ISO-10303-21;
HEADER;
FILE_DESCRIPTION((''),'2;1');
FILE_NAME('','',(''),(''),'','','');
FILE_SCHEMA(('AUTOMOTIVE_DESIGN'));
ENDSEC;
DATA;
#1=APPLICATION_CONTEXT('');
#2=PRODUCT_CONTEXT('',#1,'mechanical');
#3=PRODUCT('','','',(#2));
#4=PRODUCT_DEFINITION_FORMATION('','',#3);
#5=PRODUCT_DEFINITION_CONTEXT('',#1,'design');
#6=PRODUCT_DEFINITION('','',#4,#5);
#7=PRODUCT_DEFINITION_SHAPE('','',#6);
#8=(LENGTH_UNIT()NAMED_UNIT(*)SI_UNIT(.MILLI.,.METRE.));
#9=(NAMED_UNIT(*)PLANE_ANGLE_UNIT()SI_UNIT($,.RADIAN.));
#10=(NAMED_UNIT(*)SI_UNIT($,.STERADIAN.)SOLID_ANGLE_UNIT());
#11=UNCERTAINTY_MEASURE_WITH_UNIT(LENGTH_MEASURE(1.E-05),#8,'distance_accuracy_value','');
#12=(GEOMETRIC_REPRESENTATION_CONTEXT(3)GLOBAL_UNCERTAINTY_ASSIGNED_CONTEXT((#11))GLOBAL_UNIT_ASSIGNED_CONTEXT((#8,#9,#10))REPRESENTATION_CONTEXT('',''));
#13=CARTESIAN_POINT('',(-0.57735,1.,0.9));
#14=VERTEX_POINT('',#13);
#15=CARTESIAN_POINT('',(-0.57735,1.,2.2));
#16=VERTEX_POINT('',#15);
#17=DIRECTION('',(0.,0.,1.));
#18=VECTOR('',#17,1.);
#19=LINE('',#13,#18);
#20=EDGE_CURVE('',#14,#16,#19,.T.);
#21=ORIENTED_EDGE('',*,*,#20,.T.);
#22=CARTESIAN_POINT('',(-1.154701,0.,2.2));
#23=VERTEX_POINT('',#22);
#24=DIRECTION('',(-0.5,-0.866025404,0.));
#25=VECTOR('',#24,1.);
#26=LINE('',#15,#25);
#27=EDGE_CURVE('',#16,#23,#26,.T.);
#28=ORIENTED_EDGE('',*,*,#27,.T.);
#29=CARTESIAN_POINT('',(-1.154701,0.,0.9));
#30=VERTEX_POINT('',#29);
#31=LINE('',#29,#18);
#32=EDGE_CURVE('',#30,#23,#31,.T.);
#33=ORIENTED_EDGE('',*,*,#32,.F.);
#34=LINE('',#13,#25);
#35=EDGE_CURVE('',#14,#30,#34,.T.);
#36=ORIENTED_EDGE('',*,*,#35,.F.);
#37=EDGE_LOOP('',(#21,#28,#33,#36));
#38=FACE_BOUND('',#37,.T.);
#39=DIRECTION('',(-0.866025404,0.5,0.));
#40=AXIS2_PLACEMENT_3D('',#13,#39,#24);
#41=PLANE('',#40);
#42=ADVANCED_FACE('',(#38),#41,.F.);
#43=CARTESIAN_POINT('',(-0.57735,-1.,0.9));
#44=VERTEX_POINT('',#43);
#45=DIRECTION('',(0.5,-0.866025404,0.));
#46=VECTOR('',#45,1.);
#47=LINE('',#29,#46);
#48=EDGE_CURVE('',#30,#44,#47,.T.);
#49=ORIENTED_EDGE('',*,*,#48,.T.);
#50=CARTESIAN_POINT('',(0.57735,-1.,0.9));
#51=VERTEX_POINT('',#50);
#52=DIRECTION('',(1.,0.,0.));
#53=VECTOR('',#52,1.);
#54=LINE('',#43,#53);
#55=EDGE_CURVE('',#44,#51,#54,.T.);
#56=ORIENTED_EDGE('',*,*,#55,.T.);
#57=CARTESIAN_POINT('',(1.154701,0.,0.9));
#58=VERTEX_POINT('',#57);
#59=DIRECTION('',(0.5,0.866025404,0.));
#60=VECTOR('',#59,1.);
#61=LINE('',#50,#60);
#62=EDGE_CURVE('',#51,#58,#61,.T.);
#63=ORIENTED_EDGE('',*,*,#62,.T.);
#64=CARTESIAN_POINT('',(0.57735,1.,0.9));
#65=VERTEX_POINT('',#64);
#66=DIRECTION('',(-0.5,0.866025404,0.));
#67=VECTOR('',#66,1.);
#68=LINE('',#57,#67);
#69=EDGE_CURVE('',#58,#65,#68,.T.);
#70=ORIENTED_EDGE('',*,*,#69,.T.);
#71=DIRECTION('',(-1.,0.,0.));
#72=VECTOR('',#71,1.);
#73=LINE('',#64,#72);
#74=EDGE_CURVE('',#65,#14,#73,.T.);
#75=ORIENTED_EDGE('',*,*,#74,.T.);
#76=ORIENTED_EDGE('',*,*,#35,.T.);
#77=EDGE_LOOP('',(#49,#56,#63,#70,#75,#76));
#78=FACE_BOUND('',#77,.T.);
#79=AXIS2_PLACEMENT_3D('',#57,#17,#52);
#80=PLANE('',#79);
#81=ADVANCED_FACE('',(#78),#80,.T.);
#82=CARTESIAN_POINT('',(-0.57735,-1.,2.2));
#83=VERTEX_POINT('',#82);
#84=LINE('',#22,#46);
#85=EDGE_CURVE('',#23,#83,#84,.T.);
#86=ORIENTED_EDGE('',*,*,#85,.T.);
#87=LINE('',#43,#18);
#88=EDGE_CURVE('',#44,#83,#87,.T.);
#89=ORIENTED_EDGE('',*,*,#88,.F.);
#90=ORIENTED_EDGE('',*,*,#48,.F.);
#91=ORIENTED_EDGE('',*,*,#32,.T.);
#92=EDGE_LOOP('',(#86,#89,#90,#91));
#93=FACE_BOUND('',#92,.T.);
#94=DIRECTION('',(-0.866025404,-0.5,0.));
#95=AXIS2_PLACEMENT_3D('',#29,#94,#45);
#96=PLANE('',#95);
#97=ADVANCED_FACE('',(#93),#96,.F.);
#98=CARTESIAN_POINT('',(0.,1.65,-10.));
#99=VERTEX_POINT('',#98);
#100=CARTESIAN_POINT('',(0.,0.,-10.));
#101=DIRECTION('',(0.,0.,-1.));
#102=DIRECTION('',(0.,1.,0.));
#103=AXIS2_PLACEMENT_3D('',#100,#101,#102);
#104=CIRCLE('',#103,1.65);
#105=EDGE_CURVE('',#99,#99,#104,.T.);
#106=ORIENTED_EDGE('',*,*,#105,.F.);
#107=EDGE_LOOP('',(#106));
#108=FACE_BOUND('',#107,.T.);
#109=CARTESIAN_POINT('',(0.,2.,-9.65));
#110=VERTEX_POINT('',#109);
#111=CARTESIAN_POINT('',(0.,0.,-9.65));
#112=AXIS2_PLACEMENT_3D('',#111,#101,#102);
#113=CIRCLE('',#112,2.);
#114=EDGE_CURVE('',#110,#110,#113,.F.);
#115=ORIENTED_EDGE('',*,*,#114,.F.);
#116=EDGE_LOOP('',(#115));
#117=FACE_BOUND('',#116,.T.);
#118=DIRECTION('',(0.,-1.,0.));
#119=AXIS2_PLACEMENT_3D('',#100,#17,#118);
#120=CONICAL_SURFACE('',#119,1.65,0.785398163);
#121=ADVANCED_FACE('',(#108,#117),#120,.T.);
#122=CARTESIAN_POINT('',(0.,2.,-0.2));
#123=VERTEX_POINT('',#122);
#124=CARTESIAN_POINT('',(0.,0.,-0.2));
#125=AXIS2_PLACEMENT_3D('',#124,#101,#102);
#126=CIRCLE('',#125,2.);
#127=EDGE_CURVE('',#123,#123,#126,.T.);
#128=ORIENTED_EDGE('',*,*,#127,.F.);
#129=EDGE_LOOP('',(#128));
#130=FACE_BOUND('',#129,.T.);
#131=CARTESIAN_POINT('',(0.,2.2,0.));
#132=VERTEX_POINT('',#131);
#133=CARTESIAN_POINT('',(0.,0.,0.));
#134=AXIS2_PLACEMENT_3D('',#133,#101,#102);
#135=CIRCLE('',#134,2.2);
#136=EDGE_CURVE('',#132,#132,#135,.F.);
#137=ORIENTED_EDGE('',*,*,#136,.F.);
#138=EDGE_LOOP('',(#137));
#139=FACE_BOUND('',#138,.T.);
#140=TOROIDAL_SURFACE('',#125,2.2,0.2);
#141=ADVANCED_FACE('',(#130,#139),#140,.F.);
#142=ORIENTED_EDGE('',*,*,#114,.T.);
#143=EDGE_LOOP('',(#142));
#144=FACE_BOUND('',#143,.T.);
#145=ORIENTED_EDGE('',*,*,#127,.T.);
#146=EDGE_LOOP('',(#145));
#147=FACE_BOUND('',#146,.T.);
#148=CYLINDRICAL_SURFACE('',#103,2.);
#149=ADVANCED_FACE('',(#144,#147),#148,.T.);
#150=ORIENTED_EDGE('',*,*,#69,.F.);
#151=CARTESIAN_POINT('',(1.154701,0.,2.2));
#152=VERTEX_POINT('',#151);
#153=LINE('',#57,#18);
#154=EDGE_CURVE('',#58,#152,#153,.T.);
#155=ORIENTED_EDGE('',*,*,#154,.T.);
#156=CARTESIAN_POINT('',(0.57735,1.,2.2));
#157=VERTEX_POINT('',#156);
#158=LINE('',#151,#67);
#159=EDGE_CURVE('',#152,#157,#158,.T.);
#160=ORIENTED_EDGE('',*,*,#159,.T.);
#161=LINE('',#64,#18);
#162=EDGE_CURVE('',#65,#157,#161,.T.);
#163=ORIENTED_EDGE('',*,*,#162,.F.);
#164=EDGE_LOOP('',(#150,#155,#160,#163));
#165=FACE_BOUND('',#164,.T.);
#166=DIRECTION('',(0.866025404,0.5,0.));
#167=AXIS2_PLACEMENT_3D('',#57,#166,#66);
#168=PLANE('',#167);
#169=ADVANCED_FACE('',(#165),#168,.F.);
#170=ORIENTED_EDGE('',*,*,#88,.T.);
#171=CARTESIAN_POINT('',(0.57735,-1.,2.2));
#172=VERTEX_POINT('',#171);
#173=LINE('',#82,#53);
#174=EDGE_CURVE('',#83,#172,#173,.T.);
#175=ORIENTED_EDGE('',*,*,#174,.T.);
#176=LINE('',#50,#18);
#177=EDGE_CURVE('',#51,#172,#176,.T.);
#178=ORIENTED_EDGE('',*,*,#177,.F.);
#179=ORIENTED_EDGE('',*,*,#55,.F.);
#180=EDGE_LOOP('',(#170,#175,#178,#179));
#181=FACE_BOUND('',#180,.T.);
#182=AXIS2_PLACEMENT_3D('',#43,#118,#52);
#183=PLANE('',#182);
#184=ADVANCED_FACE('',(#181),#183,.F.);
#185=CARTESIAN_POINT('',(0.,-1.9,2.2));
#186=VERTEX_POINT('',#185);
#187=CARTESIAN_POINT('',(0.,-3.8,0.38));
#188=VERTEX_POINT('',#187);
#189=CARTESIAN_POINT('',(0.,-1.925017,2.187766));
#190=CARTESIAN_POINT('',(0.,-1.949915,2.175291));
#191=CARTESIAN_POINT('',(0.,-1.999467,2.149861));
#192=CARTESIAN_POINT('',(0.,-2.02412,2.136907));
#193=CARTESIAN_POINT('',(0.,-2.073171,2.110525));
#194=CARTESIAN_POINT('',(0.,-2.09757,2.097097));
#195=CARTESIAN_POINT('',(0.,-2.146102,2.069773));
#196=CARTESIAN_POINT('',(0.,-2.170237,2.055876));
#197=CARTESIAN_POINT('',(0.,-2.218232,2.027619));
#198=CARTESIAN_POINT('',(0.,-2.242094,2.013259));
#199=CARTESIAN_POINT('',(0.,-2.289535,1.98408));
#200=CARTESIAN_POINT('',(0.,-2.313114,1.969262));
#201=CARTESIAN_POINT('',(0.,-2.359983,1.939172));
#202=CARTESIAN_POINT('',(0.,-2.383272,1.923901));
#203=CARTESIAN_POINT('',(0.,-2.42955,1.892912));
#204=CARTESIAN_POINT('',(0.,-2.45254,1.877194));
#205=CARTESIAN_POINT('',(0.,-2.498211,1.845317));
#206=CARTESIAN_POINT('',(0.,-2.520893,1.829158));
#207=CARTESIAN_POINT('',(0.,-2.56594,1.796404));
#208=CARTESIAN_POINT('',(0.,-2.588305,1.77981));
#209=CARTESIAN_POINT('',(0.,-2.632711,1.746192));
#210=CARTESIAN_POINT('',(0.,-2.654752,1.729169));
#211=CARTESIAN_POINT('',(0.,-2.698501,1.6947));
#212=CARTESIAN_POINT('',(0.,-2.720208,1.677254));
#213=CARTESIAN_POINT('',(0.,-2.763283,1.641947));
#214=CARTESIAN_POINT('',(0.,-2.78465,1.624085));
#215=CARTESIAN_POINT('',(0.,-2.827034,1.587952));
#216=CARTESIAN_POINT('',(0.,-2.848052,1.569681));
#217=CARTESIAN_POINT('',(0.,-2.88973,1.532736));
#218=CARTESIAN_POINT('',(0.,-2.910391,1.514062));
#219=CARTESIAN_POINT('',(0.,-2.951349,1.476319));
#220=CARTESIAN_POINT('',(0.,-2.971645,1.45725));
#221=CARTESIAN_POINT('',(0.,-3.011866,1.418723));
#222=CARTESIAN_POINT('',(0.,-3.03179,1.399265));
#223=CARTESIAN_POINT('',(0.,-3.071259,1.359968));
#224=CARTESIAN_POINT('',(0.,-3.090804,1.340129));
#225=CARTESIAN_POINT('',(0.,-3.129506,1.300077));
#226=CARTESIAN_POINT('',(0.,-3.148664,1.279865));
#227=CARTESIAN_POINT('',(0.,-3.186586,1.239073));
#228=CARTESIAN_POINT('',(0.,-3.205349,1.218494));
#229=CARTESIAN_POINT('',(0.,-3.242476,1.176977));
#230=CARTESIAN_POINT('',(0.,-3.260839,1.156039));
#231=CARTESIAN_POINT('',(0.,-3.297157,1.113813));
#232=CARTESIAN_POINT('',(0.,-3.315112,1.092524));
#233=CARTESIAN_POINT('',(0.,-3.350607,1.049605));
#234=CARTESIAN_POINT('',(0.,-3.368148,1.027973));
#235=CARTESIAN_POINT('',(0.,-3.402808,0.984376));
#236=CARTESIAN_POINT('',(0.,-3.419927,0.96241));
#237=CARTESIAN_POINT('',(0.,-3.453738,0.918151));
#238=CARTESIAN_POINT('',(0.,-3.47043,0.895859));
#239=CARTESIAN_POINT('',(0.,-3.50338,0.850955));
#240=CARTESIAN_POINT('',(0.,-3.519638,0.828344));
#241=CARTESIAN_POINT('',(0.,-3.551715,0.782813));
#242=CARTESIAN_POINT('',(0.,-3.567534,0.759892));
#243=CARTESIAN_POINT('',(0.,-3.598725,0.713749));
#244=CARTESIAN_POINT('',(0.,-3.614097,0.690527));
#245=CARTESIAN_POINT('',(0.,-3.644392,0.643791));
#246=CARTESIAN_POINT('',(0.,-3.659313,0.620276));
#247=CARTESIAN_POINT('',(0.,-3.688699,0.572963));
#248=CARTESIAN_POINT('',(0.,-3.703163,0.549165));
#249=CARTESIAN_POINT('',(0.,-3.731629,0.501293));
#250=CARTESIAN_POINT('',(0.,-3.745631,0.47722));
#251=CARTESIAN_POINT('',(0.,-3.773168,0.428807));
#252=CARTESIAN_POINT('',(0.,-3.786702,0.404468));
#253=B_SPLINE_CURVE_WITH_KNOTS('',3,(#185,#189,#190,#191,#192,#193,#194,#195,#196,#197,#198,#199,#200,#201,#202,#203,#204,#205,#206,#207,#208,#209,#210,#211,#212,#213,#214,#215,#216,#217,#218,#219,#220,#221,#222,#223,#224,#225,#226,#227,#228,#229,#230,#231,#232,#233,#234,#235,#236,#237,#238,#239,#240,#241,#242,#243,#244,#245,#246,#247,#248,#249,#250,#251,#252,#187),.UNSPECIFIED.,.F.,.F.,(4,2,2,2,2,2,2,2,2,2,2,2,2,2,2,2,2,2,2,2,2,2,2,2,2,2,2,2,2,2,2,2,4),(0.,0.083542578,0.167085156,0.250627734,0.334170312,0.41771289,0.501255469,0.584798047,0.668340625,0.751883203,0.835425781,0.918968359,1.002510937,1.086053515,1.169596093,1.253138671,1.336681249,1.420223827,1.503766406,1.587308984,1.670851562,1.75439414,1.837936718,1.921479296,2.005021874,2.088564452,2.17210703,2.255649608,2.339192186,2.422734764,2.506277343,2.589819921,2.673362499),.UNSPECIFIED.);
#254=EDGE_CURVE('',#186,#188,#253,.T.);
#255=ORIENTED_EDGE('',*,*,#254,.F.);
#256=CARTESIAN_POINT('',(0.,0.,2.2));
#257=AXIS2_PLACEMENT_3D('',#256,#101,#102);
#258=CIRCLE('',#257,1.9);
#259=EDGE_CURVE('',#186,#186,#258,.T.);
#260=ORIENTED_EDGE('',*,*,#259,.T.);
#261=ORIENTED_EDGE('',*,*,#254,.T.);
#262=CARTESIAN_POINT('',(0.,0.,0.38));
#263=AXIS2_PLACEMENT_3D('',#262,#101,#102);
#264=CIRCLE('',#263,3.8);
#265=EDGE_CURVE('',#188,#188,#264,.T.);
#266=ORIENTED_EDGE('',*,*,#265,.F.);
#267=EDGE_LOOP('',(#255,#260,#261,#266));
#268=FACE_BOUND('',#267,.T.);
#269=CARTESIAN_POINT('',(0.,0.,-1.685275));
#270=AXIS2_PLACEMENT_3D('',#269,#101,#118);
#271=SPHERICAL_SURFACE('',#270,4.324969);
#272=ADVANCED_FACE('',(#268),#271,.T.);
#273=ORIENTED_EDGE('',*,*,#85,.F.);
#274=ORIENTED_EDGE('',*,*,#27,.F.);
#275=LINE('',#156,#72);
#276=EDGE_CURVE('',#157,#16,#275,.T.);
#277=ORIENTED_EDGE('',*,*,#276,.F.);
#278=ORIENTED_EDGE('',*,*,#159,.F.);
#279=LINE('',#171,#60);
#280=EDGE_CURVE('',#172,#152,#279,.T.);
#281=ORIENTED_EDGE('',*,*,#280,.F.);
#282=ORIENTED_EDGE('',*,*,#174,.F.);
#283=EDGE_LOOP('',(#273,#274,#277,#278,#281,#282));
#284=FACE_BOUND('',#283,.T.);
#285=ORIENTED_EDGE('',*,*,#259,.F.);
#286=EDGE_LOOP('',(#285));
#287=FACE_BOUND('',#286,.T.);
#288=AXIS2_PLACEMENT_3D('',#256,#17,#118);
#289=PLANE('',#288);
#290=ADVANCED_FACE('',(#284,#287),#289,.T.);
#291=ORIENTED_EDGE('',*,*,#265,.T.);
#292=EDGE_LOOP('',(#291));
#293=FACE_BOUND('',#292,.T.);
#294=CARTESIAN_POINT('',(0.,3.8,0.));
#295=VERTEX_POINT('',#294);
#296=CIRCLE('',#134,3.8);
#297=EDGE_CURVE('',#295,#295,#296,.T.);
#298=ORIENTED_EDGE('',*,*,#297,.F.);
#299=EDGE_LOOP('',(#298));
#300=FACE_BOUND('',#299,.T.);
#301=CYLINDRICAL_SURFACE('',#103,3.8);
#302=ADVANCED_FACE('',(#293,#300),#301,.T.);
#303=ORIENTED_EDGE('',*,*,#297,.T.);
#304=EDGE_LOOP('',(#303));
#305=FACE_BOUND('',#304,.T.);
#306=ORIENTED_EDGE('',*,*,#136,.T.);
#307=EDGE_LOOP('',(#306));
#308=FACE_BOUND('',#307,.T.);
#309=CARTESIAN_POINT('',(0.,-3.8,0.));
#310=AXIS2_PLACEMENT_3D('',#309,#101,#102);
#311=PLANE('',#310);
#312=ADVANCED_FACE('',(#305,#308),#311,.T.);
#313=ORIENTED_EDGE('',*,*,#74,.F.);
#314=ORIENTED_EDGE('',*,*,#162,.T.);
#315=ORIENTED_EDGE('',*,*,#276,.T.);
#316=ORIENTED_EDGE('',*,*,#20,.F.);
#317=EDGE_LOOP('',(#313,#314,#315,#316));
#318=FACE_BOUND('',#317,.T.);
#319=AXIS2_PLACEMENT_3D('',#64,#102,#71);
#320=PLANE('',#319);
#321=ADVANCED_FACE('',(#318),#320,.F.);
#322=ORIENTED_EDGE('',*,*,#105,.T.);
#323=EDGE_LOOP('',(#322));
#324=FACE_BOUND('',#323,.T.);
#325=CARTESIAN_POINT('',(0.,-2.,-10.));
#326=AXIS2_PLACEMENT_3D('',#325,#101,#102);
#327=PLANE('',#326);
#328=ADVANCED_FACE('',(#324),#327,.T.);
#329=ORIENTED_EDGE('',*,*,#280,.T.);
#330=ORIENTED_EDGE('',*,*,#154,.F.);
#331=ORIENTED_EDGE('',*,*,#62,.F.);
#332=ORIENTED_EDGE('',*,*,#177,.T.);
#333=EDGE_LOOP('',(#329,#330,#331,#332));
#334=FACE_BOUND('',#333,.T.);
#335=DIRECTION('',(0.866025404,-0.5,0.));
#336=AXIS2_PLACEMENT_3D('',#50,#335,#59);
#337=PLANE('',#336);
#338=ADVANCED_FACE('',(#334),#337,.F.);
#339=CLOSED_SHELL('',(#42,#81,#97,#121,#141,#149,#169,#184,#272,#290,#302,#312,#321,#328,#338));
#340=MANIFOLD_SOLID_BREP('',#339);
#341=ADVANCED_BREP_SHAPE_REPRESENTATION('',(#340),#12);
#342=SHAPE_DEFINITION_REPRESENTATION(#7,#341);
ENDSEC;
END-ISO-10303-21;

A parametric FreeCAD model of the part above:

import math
import FreeCAD as App
import Part
import Sketcher
Q = App.Units.Quantity


def edges_at(feature, points):
    """Names of the edges that pass closest to the given points."""
    edges = feature.Shape.Edges
    near = lambda p: min(range(len(edges)), key=lambda i: edges[i].distToShape(Part.Vertex(*p))[0])
    return sorted({f"Edge{near(p) + 1}" for p in points})


def add_polygon(sketch, points):
    """Adds a closed chain of lines whose ends are joined by coincident constraints."""
    first, n = sketch.GeometryCount, len(points)
    for a, b in zip(points, points[1:] + points[:1]):
        sketch.addGeometry(Part.LineSegment(App.Vector(*a, 0), App.Vector(*b, 0)), False)
    for i in range(n):
        sketch.addConstraint(Sketcher.Constraint("Coincident", first + i, 2, first + (i + 1) % n, 1))

doc = App.newDocument("Part")
params = doc.addObject("Spreadsheet::Sheet", "Params")
for row, (alias, value) in enumerate([
    ("sketch1_width", "2 mm"),
    ("sketch1_height", "10 mm"),
    ("sketch1_width2", "1.9 mm"),
    ("sketch1_width3", "1.8 mm"),
    ("sketch1_height2", "12.2 mm"),
    ("revolution_angle", "360 deg"),
    ("pocket1_length", "1.3 mm"),
    ("chamfer_size", "0.35 mm"),
    ("fillet_radius", "0.2 mm"),
], start=1):
    params.set(f"A{row}", alias)
    params.set(f"B{row}", "=" + value)
    params.setAlias(f"B{row}", alias)

body = doc.addObject("PartDesign::Body", "Body")

sketch1 = body.newObject("Sketcher::SketchObject", "Sketch")
sketch1.AttachmentSupport = (doc.getObject("YZ_Plane"), [""])
sketch1.MapMode = "FlatFace"
sketch1.addGeometry([
    Part.LineSegment(App.Vector(3.8, 0, 0), App.Vector(3.8, 0.38, 0)),
    Part.ArcOfCircle(Part.Circle(App.Vector(0, -1.69, 0), App.Vector(0, 0, 1), 4.32), math.radians(29), math.radians(64)),
    Part.LineSegment(App.Vector(1.9, 2.2, 0), App.Vector(0, 2.2, 0)),
    Part.LineSegment(App.Vector(0, 2.2, 0), App.Vector(0, -10, 0)),
    Part.LineSegment(App.Vector(0, -10, 0), App.Vector(2, -10, 0)),
    Part.LineSegment(App.Vector(2, -10, 0), App.Vector(2, 0, 0)),
    Part.LineSegment(App.Vector(2, 0, 0), App.Vector(3.8, 0, 0)),
], False)
sketch1.addConstraint([
    Sketcher.Constraint("Coincident", 0, 2, 1, 1),
    Sketcher.Constraint("Coincident", 1, 2, 2, 1),
    Sketcher.Constraint("Coincident", 2, 2, 3, 1),
    Sketcher.Constraint("Coincident", 3, 2, 4, 1),
    Sketcher.Constraint("Coincident", 4, 2, 5, 1),
    Sketcher.Constraint("Coincident", 5, 2, 6, 1),
    Sketcher.Constraint("Coincident", 6, 2, 0, 1),
    Sketcher.Constraint("Vertical", 0),
    Sketcher.Constraint("Horizontal", 2),
    Sketcher.Constraint("Vertical", 3),
    Sketcher.Constraint("Horizontal", 4),
    Sketcher.Constraint("Vertical", 5),
    Sketcher.Constraint("Horizontal", 6),
    Sketcher.Constraint("PointOnObject", 1, 3, -2),
    Sketcher.Constraint("PointOnObject", 2, 2, -2),
    Sketcher.Constraint("PointOnObject", 5, 2, -1),
    Sketcher.Constraint("DistanceX", 4, 1, 4, 2, 2.0),
    Sketcher.Constraint("DistanceY", 5, 1, 5, 2, 10.0),
    Sketcher.Constraint("DistanceX", 2, 2, 2, 1, 1.9),
    Sketcher.Constraint("DistanceX", 6, 1, 6, 2, 1.8),
    Sketcher.Constraint("DistanceY", 3, 2, 3, 1, 12.2),
    Sketcher.Constraint("DistanceY", 0, 1, 0, 2, 0.38),
])
sketch1.setExpression("Constraints[16]", "Params.sketch1_width")
sketch1.setExpression("Constraints[17]", "Params.sketch1_height")
sketch1.setExpression("Constraints[18]", "Params.sketch1_width2")
sketch1.setExpression("Constraints[19]", "Params.sketch1_width3")
sketch1.setExpression("Constraints[20]", "Params.sketch1_height2")
revolution = body.newObject("PartDesign::Revolution", "Revolution")
revolution.Profile = sketch1
revolution.ReferenceAxis = (sketch1, ["V_Axis"])
revolution.setExpression("Angle", "Params.revolution_angle")

sketch2 = body.newObject("Sketcher::SketchObject", "Sketch001")
sketch2.AttachmentSupport = (doc.getObject("XY_Plane"), [""])
sketch2.MapMode = "FlatFace"
sketch2.AttachmentOffset = App.Placement(App.Vector(0, 0, 2.2), App.Rotation())
add_polygon(sketch2, [(1.2, 0), (0.6, 1), (-0.6, 1), (-1.2, 0), (-0.6, -1), (0.6, -1)])
sketch2.addConstraint([
    Sketcher.Constraint("Horizontal", 1),
    Sketcher.Constraint("Horizontal", 4),
    Sketcher.Constraint("Symmetric", 0, 2, 3, 2, -1, 1),
    Sketcher.Constraint("Symmetric", 2, 2, 5, 2, -1, 1),
    Sketcher.Constraint("PointOnObject", 2, 2, -1),
    Sketcher.Constraint("Parallel", 2, 5),
    Sketcher.Constraint("Vertical", 1, 2, 3, 2),
    Sketcher.Constraint("Angle", 0, Q("120 deg")),
    Sketcher.Constraint("DistanceY", -1, 1, 0, 2, 1.0),
    Sketcher.Constraint("DistanceX", 1, 2, 1, 1, 1.154701),
])
pocket1 = body.newObject("PartDesign::Pocket", "Pocket")
pocket1.Profile = sketch2
pocket1.setExpression("Length", "Params.pocket1_length")
doc.recompute()

chamfer = body.newObject("PartDesign::Chamfer", "Chamfer")
chamfer.Base = (pocket1, edges_at(pocket1, [(0, -2, -10)]))
chamfer.setExpression("Size", "Params.chamfer_size")
doc.recompute()

fillet = body.newObject("PartDesign::Fillet", "Fillet")
fillet.Base = (chamfer, edges_at(chamfer, [(0, -2, 0)]))
fillet.setExpression("Radius", "Params.fillet_radius")

doc.recompute()
